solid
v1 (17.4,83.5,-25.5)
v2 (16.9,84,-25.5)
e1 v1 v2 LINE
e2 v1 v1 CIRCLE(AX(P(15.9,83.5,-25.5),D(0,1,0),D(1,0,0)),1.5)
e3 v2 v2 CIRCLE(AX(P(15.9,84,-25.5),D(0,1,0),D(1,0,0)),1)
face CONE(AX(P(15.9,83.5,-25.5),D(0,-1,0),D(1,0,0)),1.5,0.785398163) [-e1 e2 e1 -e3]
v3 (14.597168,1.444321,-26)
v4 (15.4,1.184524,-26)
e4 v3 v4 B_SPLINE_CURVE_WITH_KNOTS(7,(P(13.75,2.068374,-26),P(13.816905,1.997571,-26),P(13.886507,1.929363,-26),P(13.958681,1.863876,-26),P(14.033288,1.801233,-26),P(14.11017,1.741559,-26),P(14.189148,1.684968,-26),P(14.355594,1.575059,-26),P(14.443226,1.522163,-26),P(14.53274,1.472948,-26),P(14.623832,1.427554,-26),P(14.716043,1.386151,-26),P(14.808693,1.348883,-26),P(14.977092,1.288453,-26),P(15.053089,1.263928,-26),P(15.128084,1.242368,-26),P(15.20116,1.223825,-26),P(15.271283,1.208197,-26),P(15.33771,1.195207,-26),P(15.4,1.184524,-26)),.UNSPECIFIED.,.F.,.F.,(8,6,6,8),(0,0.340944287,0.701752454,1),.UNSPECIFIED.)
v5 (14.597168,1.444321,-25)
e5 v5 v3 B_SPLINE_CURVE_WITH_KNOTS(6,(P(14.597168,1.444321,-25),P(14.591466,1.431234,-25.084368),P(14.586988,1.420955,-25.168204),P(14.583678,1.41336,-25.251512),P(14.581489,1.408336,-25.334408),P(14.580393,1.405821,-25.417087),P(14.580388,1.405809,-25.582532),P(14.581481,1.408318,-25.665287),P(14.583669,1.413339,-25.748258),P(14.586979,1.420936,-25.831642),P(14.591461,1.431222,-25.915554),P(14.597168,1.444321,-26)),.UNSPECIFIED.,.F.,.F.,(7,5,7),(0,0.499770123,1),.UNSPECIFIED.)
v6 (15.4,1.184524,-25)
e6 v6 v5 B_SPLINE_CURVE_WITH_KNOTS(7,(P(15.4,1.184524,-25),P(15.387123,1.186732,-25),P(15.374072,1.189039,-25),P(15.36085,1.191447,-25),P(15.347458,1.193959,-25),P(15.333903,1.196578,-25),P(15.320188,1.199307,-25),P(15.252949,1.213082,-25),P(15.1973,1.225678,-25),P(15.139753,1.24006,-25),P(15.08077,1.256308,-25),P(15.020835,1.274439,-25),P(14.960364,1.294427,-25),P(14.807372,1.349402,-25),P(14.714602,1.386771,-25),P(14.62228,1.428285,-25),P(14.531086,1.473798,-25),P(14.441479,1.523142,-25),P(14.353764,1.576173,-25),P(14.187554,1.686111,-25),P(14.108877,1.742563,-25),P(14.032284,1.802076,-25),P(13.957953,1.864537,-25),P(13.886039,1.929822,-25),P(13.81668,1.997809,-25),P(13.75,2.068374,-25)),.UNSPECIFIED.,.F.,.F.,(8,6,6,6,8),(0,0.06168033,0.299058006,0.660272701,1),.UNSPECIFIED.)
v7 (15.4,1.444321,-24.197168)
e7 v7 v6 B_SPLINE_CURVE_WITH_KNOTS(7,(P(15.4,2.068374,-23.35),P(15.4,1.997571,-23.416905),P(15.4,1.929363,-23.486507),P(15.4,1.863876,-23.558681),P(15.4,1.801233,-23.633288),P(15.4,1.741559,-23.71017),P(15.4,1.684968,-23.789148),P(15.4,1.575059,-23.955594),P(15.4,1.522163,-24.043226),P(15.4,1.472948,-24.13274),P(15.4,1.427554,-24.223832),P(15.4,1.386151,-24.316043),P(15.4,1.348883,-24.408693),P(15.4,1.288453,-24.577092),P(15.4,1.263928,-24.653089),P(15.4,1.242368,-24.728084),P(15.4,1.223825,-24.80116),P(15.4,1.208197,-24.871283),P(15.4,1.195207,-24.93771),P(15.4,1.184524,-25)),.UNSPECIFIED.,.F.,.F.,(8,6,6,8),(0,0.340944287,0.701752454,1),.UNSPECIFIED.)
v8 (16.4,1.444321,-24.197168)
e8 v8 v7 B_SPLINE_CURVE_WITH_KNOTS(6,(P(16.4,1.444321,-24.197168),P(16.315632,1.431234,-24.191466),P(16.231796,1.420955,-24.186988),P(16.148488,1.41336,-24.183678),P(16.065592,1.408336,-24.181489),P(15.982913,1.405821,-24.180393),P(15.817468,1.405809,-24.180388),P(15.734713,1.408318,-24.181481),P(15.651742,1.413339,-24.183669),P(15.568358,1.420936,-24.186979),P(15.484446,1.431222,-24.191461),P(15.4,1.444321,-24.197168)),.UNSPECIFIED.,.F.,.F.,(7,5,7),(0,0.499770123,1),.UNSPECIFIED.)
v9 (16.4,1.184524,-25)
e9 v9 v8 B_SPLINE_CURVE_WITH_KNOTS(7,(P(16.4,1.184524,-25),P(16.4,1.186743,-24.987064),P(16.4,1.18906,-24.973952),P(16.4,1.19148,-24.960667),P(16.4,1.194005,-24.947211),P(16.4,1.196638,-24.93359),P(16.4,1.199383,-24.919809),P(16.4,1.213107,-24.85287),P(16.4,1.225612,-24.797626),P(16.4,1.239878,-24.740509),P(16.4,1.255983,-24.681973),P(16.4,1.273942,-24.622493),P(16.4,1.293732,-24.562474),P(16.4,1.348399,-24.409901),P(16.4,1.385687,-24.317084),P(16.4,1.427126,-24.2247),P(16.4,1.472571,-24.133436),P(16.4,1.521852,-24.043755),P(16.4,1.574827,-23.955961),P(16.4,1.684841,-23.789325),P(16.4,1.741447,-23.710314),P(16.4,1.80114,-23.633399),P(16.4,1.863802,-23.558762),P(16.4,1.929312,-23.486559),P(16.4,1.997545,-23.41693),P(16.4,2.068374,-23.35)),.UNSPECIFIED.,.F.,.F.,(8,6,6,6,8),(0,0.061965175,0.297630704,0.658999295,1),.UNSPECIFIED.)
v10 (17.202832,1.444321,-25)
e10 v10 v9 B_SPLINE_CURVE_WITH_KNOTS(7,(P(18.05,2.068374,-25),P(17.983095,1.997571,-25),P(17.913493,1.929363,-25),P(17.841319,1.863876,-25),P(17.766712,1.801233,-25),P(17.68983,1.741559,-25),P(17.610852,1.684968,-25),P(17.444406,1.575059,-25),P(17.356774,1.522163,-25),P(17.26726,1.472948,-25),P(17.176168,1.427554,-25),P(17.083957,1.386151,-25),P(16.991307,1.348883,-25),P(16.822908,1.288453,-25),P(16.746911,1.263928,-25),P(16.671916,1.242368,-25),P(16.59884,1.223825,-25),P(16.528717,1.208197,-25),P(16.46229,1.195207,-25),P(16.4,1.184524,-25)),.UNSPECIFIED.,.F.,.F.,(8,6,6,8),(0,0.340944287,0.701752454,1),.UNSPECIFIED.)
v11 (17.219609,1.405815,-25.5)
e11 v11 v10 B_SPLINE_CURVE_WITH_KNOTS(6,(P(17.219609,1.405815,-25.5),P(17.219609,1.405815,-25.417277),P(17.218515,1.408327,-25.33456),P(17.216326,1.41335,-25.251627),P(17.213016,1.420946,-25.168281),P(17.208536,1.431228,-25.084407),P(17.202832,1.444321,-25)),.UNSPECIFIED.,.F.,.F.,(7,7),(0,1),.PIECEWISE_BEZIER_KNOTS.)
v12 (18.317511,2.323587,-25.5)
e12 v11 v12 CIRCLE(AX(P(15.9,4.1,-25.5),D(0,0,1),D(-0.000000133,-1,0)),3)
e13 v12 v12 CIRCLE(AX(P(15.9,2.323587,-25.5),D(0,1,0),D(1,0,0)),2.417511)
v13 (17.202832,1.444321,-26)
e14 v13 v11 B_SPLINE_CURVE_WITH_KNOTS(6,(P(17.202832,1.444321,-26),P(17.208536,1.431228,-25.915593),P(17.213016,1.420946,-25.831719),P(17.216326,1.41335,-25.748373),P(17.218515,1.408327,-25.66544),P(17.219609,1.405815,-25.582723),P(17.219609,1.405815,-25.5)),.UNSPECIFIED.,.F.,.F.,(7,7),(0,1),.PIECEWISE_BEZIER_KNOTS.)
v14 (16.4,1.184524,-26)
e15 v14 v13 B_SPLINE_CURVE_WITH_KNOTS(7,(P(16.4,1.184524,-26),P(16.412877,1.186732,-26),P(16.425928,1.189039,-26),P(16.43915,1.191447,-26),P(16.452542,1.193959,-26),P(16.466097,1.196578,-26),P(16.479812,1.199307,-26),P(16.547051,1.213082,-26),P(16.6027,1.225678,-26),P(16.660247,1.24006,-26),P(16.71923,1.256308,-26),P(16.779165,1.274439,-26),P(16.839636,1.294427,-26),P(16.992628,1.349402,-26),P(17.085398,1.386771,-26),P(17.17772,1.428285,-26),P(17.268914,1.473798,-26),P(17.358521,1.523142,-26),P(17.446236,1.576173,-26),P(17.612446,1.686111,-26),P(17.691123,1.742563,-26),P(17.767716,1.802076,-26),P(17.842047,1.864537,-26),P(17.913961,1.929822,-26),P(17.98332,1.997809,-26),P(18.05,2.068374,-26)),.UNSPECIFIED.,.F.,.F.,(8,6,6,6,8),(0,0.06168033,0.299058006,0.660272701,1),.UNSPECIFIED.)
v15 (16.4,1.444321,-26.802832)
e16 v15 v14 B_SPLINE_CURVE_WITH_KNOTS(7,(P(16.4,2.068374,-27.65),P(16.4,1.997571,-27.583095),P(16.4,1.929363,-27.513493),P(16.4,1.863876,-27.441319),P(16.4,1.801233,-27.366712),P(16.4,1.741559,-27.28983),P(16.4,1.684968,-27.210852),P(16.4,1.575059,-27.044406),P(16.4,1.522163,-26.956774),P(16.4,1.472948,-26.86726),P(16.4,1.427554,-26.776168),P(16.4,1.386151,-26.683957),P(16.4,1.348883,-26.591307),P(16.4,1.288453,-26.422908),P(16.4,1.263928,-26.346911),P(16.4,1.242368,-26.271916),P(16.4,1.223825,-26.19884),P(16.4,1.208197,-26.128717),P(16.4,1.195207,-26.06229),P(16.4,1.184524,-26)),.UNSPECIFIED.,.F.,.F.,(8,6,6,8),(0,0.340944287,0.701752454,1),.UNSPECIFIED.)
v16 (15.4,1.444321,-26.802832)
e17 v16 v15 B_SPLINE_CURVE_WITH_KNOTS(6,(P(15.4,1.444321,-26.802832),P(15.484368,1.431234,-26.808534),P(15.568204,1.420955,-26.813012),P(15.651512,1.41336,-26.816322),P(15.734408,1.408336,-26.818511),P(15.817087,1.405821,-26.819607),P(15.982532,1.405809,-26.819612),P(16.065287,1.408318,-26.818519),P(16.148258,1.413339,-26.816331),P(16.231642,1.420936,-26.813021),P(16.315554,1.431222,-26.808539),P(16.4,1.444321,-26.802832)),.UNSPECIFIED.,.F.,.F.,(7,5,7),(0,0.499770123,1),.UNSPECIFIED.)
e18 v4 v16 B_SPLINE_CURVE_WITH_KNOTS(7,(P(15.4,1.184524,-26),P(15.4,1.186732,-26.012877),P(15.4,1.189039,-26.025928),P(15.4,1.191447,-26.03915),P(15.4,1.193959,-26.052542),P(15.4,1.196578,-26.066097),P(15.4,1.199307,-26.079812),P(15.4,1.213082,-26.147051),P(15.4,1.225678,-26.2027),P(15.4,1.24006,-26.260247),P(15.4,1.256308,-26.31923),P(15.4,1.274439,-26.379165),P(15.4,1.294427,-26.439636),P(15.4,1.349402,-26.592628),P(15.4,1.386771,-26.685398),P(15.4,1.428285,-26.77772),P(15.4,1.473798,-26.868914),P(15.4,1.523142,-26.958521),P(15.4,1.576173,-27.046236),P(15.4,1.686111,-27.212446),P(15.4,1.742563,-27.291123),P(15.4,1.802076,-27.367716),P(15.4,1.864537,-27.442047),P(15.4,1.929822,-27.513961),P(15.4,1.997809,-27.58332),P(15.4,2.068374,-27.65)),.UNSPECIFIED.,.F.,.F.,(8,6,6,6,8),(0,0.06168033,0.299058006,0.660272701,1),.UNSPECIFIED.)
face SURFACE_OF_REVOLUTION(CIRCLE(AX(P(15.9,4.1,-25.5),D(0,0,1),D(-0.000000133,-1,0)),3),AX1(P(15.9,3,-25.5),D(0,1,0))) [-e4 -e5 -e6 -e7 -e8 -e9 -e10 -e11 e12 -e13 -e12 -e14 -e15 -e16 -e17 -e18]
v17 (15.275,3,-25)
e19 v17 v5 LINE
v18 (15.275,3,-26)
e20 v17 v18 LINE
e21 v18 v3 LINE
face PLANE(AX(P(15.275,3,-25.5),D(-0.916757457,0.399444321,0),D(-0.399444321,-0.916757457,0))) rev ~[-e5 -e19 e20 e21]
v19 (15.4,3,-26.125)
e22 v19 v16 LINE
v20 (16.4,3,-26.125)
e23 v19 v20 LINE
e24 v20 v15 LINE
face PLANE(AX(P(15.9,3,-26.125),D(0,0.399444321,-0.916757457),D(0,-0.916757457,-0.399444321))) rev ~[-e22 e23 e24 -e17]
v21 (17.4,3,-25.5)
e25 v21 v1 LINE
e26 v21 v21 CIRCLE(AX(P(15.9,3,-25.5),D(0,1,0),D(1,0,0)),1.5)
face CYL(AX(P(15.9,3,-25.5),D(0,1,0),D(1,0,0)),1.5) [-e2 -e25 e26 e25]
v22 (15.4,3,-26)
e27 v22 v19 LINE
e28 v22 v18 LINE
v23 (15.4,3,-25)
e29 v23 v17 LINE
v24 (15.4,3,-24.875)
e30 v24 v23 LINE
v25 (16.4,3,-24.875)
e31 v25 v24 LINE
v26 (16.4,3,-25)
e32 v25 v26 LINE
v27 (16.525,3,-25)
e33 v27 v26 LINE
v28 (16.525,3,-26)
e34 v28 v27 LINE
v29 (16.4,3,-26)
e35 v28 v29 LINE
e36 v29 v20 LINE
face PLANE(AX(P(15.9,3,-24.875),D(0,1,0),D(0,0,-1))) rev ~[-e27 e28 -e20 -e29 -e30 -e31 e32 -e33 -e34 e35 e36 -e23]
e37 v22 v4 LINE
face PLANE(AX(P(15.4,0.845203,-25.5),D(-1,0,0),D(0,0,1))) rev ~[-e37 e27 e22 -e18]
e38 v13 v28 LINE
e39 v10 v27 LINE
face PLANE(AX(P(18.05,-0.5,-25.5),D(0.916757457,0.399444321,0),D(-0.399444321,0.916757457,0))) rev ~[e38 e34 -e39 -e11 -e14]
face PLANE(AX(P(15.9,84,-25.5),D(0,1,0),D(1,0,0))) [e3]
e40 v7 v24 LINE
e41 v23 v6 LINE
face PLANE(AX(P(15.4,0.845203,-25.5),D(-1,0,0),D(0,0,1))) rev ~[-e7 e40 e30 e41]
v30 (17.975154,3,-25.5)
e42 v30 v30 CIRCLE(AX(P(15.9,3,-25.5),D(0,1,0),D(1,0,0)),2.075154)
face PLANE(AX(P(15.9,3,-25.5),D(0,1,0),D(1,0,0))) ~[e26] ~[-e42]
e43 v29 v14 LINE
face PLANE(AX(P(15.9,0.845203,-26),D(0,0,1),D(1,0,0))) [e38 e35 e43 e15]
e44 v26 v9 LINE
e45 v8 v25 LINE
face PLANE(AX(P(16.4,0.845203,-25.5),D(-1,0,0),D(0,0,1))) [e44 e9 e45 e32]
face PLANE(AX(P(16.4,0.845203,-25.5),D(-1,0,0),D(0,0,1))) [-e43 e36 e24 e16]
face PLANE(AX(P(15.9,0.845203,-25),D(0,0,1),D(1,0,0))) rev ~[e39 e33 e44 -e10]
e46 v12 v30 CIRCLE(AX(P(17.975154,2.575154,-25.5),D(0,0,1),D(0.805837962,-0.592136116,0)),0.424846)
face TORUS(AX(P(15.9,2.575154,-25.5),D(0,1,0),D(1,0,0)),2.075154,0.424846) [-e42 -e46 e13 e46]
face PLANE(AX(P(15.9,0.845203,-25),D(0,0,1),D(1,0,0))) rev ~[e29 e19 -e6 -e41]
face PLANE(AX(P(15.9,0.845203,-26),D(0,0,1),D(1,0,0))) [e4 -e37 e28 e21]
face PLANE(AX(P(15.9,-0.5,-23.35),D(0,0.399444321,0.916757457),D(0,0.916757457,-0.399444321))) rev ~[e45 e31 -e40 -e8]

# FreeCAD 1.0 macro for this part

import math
import FreeCAD as App
import Part
import Sketcher

V = App.Vector
Q = App.Units.Quantity

doc = App.newDocument("Part")
body = doc.addObject("PartDesign::Body", "Body")

sketch1 = body.newObject("Sketcher::SketchObject", "Sketch")
sketch1.AttachmentSupport = (doc.getObject("XY_Plane"), [""])
sketch1.MapMode = "FlatFace"
sketch1.addGeometry(Part.LineSegment(V(-2.1, -3.5, 0), V(2.1, -3.5, 0)), False)
sketch1.addGeometry(Part.LineSegment(V(2.1, -3.5, 0), V(0.6, 0, 0)), False)
sketch1.addGeometry(Part.LineSegment(V(0.6, 0, 0), V(-0.6, 0, 0)), False)
sketch1.addGeometry(Part.LineSegment(V(-0.6, 0, 0), V(-2.1, -3.5, 0)), False)
sketch1.addConstraint(Sketcher.Constraint("Coincident", 0, 2, 1, 1))
sketch1.addConstraint(Sketcher.Constraint("Coincident", 1, 2, 2, 1))
sketch1.addConstraint(Sketcher.Constraint("Coincident", 2, 2, 3, 1))
sketch1.addConstraint(Sketcher.Constraint("Coincident", 3, 2, 0, 1))
sketch1.addConstraint(Sketcher.Constraint("Horizontal", 0))
sketch1.addConstraint(Sketcher.Constraint("Horizontal", 2))
sketch1.addConstraint(Sketcher.Constraint("Symmetric", 1, 2, 2, 2, -1, 1))
sketch1.addConstraint(Sketcher.Constraint("Equal", 1, 3))
sketch1.addConstraint(Sketcher.Constraint("DistanceX", 0, 1, 0, 2, Q("4.3 mm")))
sketch1.addConstraint(Sketcher.Constraint("DistanceX", 2, 2, 2, 1, Q("1.25 mm")))
sketch1.addConstraint(Sketcher.Constraint("DistanceY", 0, 2, -1, 1, Q("3.5 mm")))
pad1 = body.newObject("PartDesign::Pad", "Pad")
pad1.Profile = sketch1
pad1.Length = 1
pad1.Midplane = True
body2 = doc.addObject("PartDesign::Body", "Body001")
doc.recompute()

body.Placement = App.Placement(V(0, 0, 0), App.Rotation(V(0, -1, 0), 90))
boolean = body2.newObject("PartDesign::Boolean", "Boolean")
boolean.Type = "Fuse"
boolean.addObjects([body])
body3 = doc.addObject("PartDesign::Body", "Body002")

sketch2 = body3.newObject("Sketcher::SketchObject", "Sketch001")
sketch2.AttachmentSupport = (doc.getObject("XY_Plane002"), [""])
sketch2.MapMode = "FlatFace"
sketch2.addGeometry(Part.LineSegment(V(-2.1, -3.5, 0), V(2.1, -3.5, 0)), False)
sketch2.addGeometry(Part.LineSegment(V(2.1, -3.5, 0), V(0.6, 0, 0)), False)
sketch2.addGeometry(Part.LineSegment(V(0.6, 0, 0), V(-0.6, 0, 0)), False)
sketch2.addGeometry(Part.LineSegment(V(-0.6, 0, 0), V(-2.1, -3.5, 0)), False)
sketch2.addConstraint(Sketcher.Constraint("Coincident", 0, 2, 1, 1))
sketch2.addConstraint(Sketcher.Constraint("Coincident", 1, 2, 2, 1))
sketch2.addConstraint(Sketcher.Constraint("Coincident", 2, 2, 3, 1))
sketch2.addConstraint(Sketcher.Constraint("Coincident", 3, 2, 0, 1))
sketch2.addConstraint(Sketcher.Constraint("Horizontal", 0))
sketch2.addConstraint(Sketcher.Constraint("Horizontal", 2))
sketch2.addConstraint(Sketcher.Constraint("Symmetric", 1, 2, 2, 2, -1, 1))
sketch2.addConstraint(Sketcher.Constraint("Equal", 1, 3))
sketch2.addConstraint(Sketcher.Constraint("DistanceX", 0, 1, 0, 2, Q("4.3 mm")))
sketch2.addConstraint(Sketcher.Constraint("DistanceX", 2, 2, 2, 1, Q("1.25 mm")))
sketch2.addConstraint(Sketcher.Constraint("DistanceY", 0, 2, -1, 1, Q("3.5 mm")))
pad2 = body3.newObject("PartDesign::Pad", "Pad001")
pad2.Profile = sketch2
pad2.Length = 1
pad2.Midplane = True
doc.recompute()

boolean2 = body3.newObject("PartDesign::Boolean", "Boolean001")
boolean2.Type = "Fuse"
boolean2.addObjects([body2])
body4 = doc.addObject("PartDesign::Body", "Body003")

sketch3 = body4.newObject("Sketcher::SketchObject", "Sketch002")
sketch3.AttachmentSupport = (doc.getObject("XY_Plane003"), [""])
sketch3.MapMode = "FlatFace"
sketch3.addGeometry(Part.LineSegment(V(1.5, 0, 0), V(1.5, 80.5, 0)), False)
sketch3.addGeometry(Part.LineSegment(V(1.5, 80.5, 0), V(1, 81, 0)), False)
sketch3.addGeometry(Part.LineSegment(V(1, 81, 0), V(0, 81, 0)), False)
sketch3.addGeometry(Part.LineSegment(V(0, 81, 0), V(0, -1.9, 0)), False)
sketch3.addGeometry(Part.ArcOfCircle(Part.Circle(V(0, 1.1, 0), V(0, 0, 1), 3), math.radians(-90), math.radians(-36)), False)
sketch3.addGeometry(Part.ArcOfCircle(Part.Circle(V(2.08, -0.42, 0), V(0, 0, 1), 0.42), math.radians(-36), math.radians(90)), False)
sketch3.addGeometry(Part.LineSegment(V(2.08, 0, 0), V(1.5, 0, 0)), False)
sketch3.addConstraint(Sketcher.Constraint("Coincident", 0, 2, 1, 1))
sketch3.addConstraint(Sketcher.Constraint("Coincident", 1, 2, 2, 1))
sketch3.addConstraint(Sketcher.Constraint("Coincident", 2, 2, 3, 1))
sketch3.addConstraint(Sketcher.Constraint("Coincident", 3, 2, 4, 1))
sketch3.addConstraint(Sketcher.Constraint("Tangent", 4, 2, 5, 1))
sketch3.addConstraint(Sketcher.Constraint("Tangent", 5, 2, 6, 1))
sketch3.addConstraint(Sketcher.Constraint("Coincident", 6, 2, 0, 1))
sketch3.addConstraint(Sketcher.Constraint("Vertical", 0))
sketch3.addConstraint(Sketcher.Constraint("Horizontal", 2))
sketch3.addConstraint(Sketcher.Constraint("Vertical", 3))
sketch3.addConstraint(Sketcher.Constraint("Horizontal", 6))
sketch3.addConstraint(Sketcher.Constraint("PointOnObject", 4, 3, -2))
sketch3.addConstraint(Sketcher.Constraint("PointOnObject", 2, 2, -2))
sketch3.addConstraint(Sketcher.Constraint("PointOnObject", 5, 2, -1))
sketch3.addConstraint(Sketcher.Constraint("Radius", 4, Q("3 mm")))
sketch3.addConstraint(Sketcher.Constraint("DistanceX", 2, 2, 2, 1, Q("1 mm")))
sketch3.addConstraint(Sketcher.Constraint("Angle", 1, Q("135 deg")))
sketch3.addConstraint(Sketcher.Constraint("DistanceY", 0, 1, 0, 2, Q("80.5 mm")))
sketch3.addConstraint(Sketcher.Constraint("DistanceY", 3, 2, 3, 1, Q("82.9 mm")))
sketch3.addConstraint(Sketcher.Constraint("DistanceY", -1, 1, 1, 2, Q("81 mm")))
sketch3.addConstraint(Sketcher.Constraint("Radius", 5, Q("0.424846 mm")))
revolution = body4.newObject("PartDesign::Revolution", "Revolution")
revolution.Profile = sketch3
revolution.ReferenceAxis = (sketch3, ["V_Axis"])
revolution.Angle = 360
doc.recompute()

boolean3 = body4.newObject("PartDesign::Boolean", "Boolean002")
boolean3.Type = "Cut"
boolean3.addObjects([body3])
body5 = doc.addObject("PartDesign::Body", "Body004")
doc.recompute()

body4.Placement = App.Placement(V(-15.9, 3, 25.5), App.Rotation(V(0, 0, 1), 0))
boolean4 = body5.newObject("PartDesign::Boolean", "Boolean003")
boolean4.Type = "Fuse"
boolean4.addObjects([body4])
body6 = doc.addObject("PartDesign::Body", "Body005")
doc.recompute()

body5.Placement = App.Placement(V(15.9, 0, -25.5), App.Rotation(V(0, 0, 1), 0))
boolean5 = body6.newObject("PartDesign::Boolean", "Boolean004")
boolean5.Type = "Fuse"
boolean5.addObjects([body5])
body7 = doc.addObject("PartDesign::Body", "Body006")
doc.recompute()

body6.Placement = App.Placement(V(15.9, 0, -25.5), App.Rotation(V(0, 0, 1), 0))
boolean6 = body7.newObject("PartDesign::Boolean", "Boolean005")
boolean6.Type = "Fuse"
boolean6.addObjects([body6])

doc.recompute()
